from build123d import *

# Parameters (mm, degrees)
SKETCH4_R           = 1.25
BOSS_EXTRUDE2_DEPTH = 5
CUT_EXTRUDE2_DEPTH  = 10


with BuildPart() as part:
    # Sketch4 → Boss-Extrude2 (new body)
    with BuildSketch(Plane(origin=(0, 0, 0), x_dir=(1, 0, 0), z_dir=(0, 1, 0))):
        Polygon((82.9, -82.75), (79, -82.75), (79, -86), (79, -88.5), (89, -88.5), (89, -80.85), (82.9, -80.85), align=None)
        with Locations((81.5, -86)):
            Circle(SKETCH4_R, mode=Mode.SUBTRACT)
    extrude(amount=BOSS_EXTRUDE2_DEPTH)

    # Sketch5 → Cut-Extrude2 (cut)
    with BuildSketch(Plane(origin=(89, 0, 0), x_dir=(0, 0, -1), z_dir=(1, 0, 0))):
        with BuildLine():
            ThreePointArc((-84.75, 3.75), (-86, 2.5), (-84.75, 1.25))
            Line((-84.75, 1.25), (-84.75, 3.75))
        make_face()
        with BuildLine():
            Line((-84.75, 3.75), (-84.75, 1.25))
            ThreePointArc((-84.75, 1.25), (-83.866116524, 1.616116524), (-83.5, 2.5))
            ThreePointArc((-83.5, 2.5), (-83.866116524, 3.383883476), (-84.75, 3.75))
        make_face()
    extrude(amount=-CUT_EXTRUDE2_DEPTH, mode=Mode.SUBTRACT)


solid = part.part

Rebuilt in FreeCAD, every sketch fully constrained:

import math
import FreeCAD as App
import Part
import Sketcher

V = App.Vector

doc = App.newDocument("Part")
params = doc.addObject("Spreadsheet::Sheet", "Params")
for row, (alias, value) in enumerate([
    ("sketch1_diameter", "2.5 mm"),
    ("sketch1_width", "10 mm"),
    ("sketch1_width2", "3.9 mm"),
    ("sketch1_height", "1.9 mm"),
    ("sketch1_height2", "5.75 mm"),
    ("pad1_length", "5 mm"),
    ("sketch2_radius", "1.25 mm"),
    ("pocket1_length", "10 mm"),
], start=1):
    params.set(f"A{row}", alias)
    params.set(f"B{row}", "=" + value)
    params.setAlias(f"B{row}", alias)

body = doc.addObject("PartDesign::Body", "Body")

sketch1 = body.newObject("Sketcher::SketchObject", "Sketch")
sketch1.AttachmentSupport = (doc.getObject("XZ_Plane"), [""])
sketch1.MapMode = "FlatFace"
sketch1.addGeometry([
    Part.LineSegment(V(82.9, 82.8, 0), V(79, 82.8, 0)),
    Part.LineSegment(V(79, 82.8, 0), V(79, 88.5, 0)),
    Part.LineSegment(V(79, 88.5, 0), V(89, 88.5, 0)),
    Part.LineSegment(V(89, 88.5, 0), V(89, 80.8, 0)),
    Part.LineSegment(V(89, 80.8, 0), V(82.9, 80.8, 0)),
    Part.LineSegment(V(82.9, 80.8, 0), V(82.9, 82.8, 0)),
    Part.Circle(V(81.5, 86, 0), V(0, 0, 1), 1.2),
], False)
sketch1.addConstraint([
    Sketcher.Constraint("Coincident", 0, 2, 1, 1),
    Sketcher.Constraint("Coincident", 1, 2, 2, 1),
    Sketcher.Constraint("Coincident", 2, 2, 3, 1),
    Sketcher.Constraint("Coincident", 3, 2, 4, 1),
    Sketcher.Constraint("Coincident", 4, 2, 5, 1),
    Sketcher.Constraint("Coincident", 5, 2, 0, 1),
    Sketcher.Constraint("Horizontal", 0),
    Sketcher.Constraint("Vertical", 1),
    Sketcher.Constraint("Horizontal", 2),
    Sketcher.Constraint("Vertical", 3),
    Sketcher.Constraint("Horizontal", 4),
    Sketcher.Constraint("Vertical", 5),
    Sketcher.Constraint("Diameter", 6, 2.5),
    Sketcher.Constraint("DistanceX", 2, 1, 2, 2, 10.0),
    Sketcher.Constraint("DistanceX", 0, 2, 0, 1, 3.9),
    Sketcher.Constraint("DistanceY", 5, 1, 5, 2, 1.9),
    Sketcher.Constraint("DistanceY", -1, 1, 6, 3, 86.0),
    Sketcher.Constraint("DistanceX", -1, 1, 0, 2, 79.0),
    Sketcher.Constraint("DistanceY", 1, 1, 1, 2, 5.75),
    Sketcher.Constraint("DistanceX", -1, 1, 6, 3, 81.5),
    Sketcher.Constraint("DistanceY", -1, 1, 1, 2, 88.5),
])
sketch1.setExpression("Constraints[12]", "Params.sketch1_diameter")
sketch1.setExpression("Constraints[13]", "Params.sketch1_width")
sketch1.setExpression("Constraints[14]", "Params.sketch1_width2")
sketch1.setExpression("Constraints[15]", "Params.sketch1_height")
sketch1.setExpression("Constraints[18]", "Params.sketch1_height2")
pad1 = body.newObject("PartDesign::Pad", "Pad")
pad1.Profile = sketch1
pad1.setExpression("Length", "Params.pad1_length")
pad1.Reversed = True

sketch2 = body.newObject("Sketcher::SketchObject", "Sketch001")
sketch2.AttachmentSupport = (doc.getObject("YZ_Plane"), [""])
sketch2.MapMode = "FlatFace"
sketch2.AttachmentOffset = App.Placement(V(0, 0, 89), App.Rotation())
sketch2.addGeometry([
    Part.ArcOfCircle(Part.Circle(V(2.5, 84.8, 0), V(0, 0, 1), 1.2), math.radians(0), math.radians(180)),
    Part.ArcOfCircle(Part.Circle(V(2.5, 84.8, 0), V(0, 0, 1), 1.3), math.radians(-180), math.radians(-90)),
    Part.ArcOfCircle(Part.Circle(V(2.5, 84.8, 0), V(0, 0, 1), 1.3), math.radians(-90), math.radians(0)),
], False)
sketch2.addConstraint([
    Sketcher.Constraint("Tangent", 0, 2, 1, 1),
    Sketcher.Constraint("Tangent", 1, 2, 2, 1),
    Sketcher.Constraint("Tangent", 2, 2, 0, 1),
    Sketcher.Constraint("Horizontal", 2, 3, 0, 2),
    Sketcher.Constraint("Horizontal", 0, 2, 2, 2),
    Sketcher.Constraint("Vertical", 2, 3, 1, 2),
    Sketcher.Constraint("Radius", 0, 1.25),
    Sketcher.Constraint("DistanceX", -1, 1, 0, 3, 2.5),
    Sketcher.Constraint("DistanceY", -1, 1, 1, 2, 83.5),
])
sketch2.setExpression("Constraints[6]", "Params.sketch2_radius")
pocket1 = body.newObject("PartDesign::Pocket", "Pocket")
pocket1.Profile = sketch2
pocket1.setExpression("Length", "Params.pocket1_length")

doc.recompute()
